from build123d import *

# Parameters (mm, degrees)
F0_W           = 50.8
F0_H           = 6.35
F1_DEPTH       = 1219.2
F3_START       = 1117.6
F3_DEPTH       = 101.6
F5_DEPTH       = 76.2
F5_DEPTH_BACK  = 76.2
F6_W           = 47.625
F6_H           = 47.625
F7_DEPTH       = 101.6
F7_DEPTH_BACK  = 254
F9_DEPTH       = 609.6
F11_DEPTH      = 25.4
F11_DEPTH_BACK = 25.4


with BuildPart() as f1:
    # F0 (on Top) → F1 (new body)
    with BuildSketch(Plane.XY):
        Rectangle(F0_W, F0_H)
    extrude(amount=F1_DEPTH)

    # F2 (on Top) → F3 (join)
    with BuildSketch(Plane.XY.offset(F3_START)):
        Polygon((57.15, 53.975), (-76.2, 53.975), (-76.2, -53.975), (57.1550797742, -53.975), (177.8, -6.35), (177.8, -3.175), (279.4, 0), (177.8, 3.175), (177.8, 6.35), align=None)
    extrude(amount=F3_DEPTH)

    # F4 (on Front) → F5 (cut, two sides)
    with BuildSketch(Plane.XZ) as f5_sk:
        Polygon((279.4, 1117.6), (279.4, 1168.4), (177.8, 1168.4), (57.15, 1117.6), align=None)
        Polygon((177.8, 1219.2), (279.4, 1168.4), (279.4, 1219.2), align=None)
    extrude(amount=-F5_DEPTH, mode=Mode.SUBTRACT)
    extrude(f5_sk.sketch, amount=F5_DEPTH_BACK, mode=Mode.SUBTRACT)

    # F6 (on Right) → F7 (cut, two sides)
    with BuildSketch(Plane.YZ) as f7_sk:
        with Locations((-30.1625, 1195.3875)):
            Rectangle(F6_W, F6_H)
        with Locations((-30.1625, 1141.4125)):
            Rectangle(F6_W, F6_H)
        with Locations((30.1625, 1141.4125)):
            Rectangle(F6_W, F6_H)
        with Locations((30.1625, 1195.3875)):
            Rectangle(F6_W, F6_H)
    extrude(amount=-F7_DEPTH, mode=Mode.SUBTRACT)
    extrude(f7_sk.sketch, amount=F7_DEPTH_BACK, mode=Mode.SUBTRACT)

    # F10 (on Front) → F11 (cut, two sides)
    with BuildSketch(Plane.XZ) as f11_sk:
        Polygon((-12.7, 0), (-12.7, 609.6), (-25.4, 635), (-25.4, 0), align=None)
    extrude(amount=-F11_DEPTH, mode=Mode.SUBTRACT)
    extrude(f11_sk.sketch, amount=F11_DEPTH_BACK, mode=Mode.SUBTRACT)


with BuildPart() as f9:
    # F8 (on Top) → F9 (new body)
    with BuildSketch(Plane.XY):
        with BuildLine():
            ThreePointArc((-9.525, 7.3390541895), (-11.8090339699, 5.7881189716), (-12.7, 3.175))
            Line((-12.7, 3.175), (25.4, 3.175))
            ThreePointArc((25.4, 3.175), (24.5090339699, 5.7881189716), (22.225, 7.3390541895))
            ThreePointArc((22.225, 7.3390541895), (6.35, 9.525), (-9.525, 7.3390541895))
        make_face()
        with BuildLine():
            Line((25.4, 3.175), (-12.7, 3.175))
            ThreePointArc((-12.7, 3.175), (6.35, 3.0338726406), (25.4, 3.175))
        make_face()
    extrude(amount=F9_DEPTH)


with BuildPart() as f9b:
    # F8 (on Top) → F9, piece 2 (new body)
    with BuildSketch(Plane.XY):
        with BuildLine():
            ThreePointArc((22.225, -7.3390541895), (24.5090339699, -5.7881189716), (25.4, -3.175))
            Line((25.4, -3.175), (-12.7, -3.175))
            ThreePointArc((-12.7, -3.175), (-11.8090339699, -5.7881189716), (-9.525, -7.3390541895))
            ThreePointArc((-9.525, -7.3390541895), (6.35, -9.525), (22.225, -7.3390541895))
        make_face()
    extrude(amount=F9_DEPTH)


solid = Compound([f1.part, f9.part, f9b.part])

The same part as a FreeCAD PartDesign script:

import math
import FreeCAD as App
import Part
import Sketcher

V = App.Vector
Q = App.Units.Quantity


def add_polygon(sketch, points):
    """Adds a closed chain of lines whose ends are joined by coincident constraints."""
    first, n = sketch.GeometryCount, len(points)
    for a, b in zip(points, points[1:] + points[:1]):
        sketch.addGeometry(Part.LineSegment(App.Vector(*a, 0), App.Vector(*b, 0)), False)
    for i in range(n):
        sketch.addConstraint(Sketcher.Constraint("Coincident", first + i, 2, first + (i + 1) % n, 1))

doc = App.newDocument("Part")
body = doc.addObject("PartDesign::Body", "Body")

# Sketch on XY plane
sketch1 = body.newObject("Sketcher::SketchObject", "Sketch")
sketch1.AttachmentSupport = (doc.getObject("XY_Plane"), [""])
sketch1.MapMode = "FlatFace"
add_polygon(sketch1, [(-25.4, 3.175), (-25.4, -3.175), (25.4, -3.175), (25.4, 3.175)])  # lines 0-3
sketch1.addConstraint(Sketcher.Constraint("Vertical", 0))
sketch1.addConstraint(Sketcher.Constraint("Horizontal", 1))
sketch1.addConstraint(Sketcher.Constraint("Vertical", 2))
sketch1.addConstraint(Sketcher.Constraint("Horizontal", 3))
sketch1.addConstraint(Sketcher.Constraint("Symmetric", 0, 2, 2, 2, -1, 1))
sketch1.addConstraint(Sketcher.Constraint("DistanceX", 1, 1, 1, 2, Q("2 in")))
sketch1.addConstraint(Sketcher.Constraint("DistanceY", 0, 2, 0, 1, Q("0.25 in")))
pad1 = body.newObject("PartDesign::Pad", "Pad")
pad1.Profile = sketch1
pad1.Length = Q("48 in")

# Sketch on XY plane
sketch2 = body.newObject("Sketcher::SketchObject", "Sketch001")
sketch2.AttachmentSupport = (doc.getObject("XY_Plane"), [""])
sketch2.MapMode = "FlatFace"
sketch2.AttachmentOffset = App.Placement(V(0, 0, 44 * 25.4), App.Rotation())
add_polygon(sketch2, [(57.15, 53.975), (-76.2, 53.975), (-76.2, -53.975), (57.15508, -53.975), (177.8, -6.35), (177.8, -3.175), (279.4, 0), (177.8, 3.175), (177.8, 6.35)])  # lines 0-8
sketch2.addConstraint(Sketcher.Constraint("Horizontal", 0))
sketch2.addConstraint(Sketcher.Constraint("Vertical", 1))
sketch2.addConstraint(Sketcher.Constraint("Horizontal", 2))
sketch2.addConstraint(Sketcher.Constraint("Vertical", 4))
sketch2.addConstraint(Sketcher.Constraint("Vertical", 7))
sketch2.addConstraint(Sketcher.Constraint("Symmetric", 4, 2, 6, 2, -1))
sketch2.addConstraint(Sketcher.Constraint("PointOnObject", 5, 2, -1))
sketch2.addConstraint(Sketcher.Constraint("Equal", 4, 7))
sketch2.addConstraint(Sketcher.Constraint("DistanceX", 0, 2, -1, 1, Q("3 in")))
sketch2.addConstraint(Sketcher.Constraint("DistanceX", -1, 1, 3, 2, Q("7 in")))
sketch2.addConstraint(Sketcher.Constraint("DistanceX", -1, 1, 5, 2, Q("11 in")))
sketch2.addConstraint(Sketcher.Constraint("DistanceY", 2, 2, 4, 2, Q("2 in")))
sketch2.addConstraint(Sketcher.Constraint("DistanceY", 6, 2, 0, 2, Q("2 in")))
sketch2.addConstraint(Sketcher.Constraint("DistanceX", 0, 2, 0, 1, Q("5.25 in")))
sketch2.addConstraint(Sketcher.Constraint("DistanceY", 1, 2, 1, 1, Q("4.25 in")))
sketch2.addConstraint(Sketcher.Constraint("DistanceY", 3, 2, 7, 2, Q("0.5 in")))
sketch2.addConstraint(Sketcher.Constraint("DistanceX", 2, 1, 2, 2, Q("5.2502 in")))
pad2 = body.newObject("PartDesign::Pad", "Pad001")
pad2.Profile = sketch2
pad2.Length = Q("4 in")

# Sketch on XZ plane
sketch3 = body.newObject("Sketcher::SketchObject", "Sketch002")
sketch3.AttachmentSupport = (doc.getObject("XZ_Plane"), [""])
sketch3.MapMode = "FlatFace"
add_polygon(sketch3, [(279.4, 1117.6), (279.4, 1168.4), (177.8, 1168.4), (57.15, 1117.6)])  # lines 0-3
add_polygon(sketch3, [(177.8, 1219.2), (279.4, 1168.4), (279.4, 1219.2)])  # lines 4-6
sketch3.addConstraint(Sketcher.Constraint("Vertical", 0))
sketch3.addConstraint(Sketcher.Constraint("Horizontal", 1))
sketch3.addConstraint(Sketcher.Constraint("Horizontal", 3))
sketch3.addConstraint(Sketcher.Constraint("Vertical", 5))
sketch3.addConstraint(Sketcher.Constraint("Horizontal", 6))
sketch3.addConstraint(Sketcher.Constraint("Coincident", 4, 2, 0, 2))
sketch3.addConstraint(Sketcher.Constraint("Vertical", 1, 2, 6, 2))
sketch3.addConstraint(Sketcher.Constraint("Equal", 0, 5))
sketch3.addConstraint(Sketcher.Constraint("DistanceX", 1, 2, 1, 1, Q("4 in")))
sketch3.addConstraint(Sketcher.Constraint("DistanceY", 0, 1, 0, 2, Q("2 in")))
sketch3.addConstraint(Sketcher.Constraint("DistanceX", -1, 1, 0, 2, Q("11 in")))
sketch3.addConstraint(Sketcher.Constraint("DistanceY", -1, 1, 0, 2, Q("46 in")))
sketch3.addConstraint(Sketcher.Constraint("DistanceX", 3, 1, 3, 2, Q("8.75 in")))
pocket1 = body.newObject("PartDesign::Pocket", "Pocket")
pocket1.Profile = sketch3
pocket1.Type = "ThroughAll"
pocket1.Midplane = True

# Sketch on YZ plane
sketch4 = body.newObject("Sketcher::SketchObject", "Sketch003")
sketch4.AttachmentSupport = (doc.getObject("YZ_Plane"), [""])
sketch4.MapMode = "FlatFace"
add_polygon(sketch4, [(-53.975, 1219.2), (-53.975, 1171.575), (-6.35, 1171.575), (-6.35, 1219.2)])  # lines 0-3
add_polygon(sketch4, [(-53.975, 1165.225), (-53.975, 1117.6), (-6.35, 1117.6), (-6.35, 1165.225)])  # lines 4-7
add_polygon(sketch4, [(6.35, 1165.225), (6.35, 1117.6), (53.975, 1117.6), (53.975, 1165.225)])  # lines 8-11
add_polygon(sketch4, [(6.35, 1219.2), (6.35, 1171.575), (53.975, 1171.575), (53.975, 1219.2)])  # lines 12-15
sketch4.addConstraint(Sketcher.Constraint("Vertical", 0))
sketch4.addConstraint(Sketcher.Constraint("Horizontal", 1))
sketch4.addConstraint(Sketcher.Constraint("Vertical", 2))
sketch4.addConstraint(Sketcher.Constraint("Horizontal", 3))
sketch4.addConstraint(Sketcher.Constraint("Vertical", 4))
sketch4.addConstraint(Sketcher.Constraint("Horizontal", 5))
sketch4.addConstraint(Sketcher.Constraint("Vertical", 6))
sketch4.addConstraint(Sketcher.Constraint("Horizontal", 7))
sketch4.addConstraint(Sketcher.Constraint("Vertical", 8))
sketch4.addConstraint(Sketcher.Constraint("Horizontal", 9))
sketch4.addConstraint(Sketcher.Constraint("Vertical", 10))
sketch4.addConstraint(Sketcher.Constraint("Horizontal", 11))
sketch4.addConstraint(Sketcher.Constraint("Vertical", 12))
sketch4.addConstraint(Sketcher.Constraint("Horizontal", 13))
sketch4.addConstraint(Sketcher.Constraint("Vertical", 14))
sketch4.addConstraint(Sketcher.Constraint("Horizontal", 15))
sketch4.addConstraint(Sketcher.Constraint("Symmetric", 5, 2, 8, 2, -2))
sketch4.addConstraint(Sketcher.Constraint("Symmetric", 7, 2, 10, 2, -2))
sketch4.addConstraint(Sketcher.Constraint("Symmetric", 1, 2, 12, 2, -2))
sketch4.addConstraint(Sketcher.Constraint("Symmetric", 3, 2, 14, 2, -2))
sketch4.addConstraint(Sketcher.Constraint("Vertical", 3, 2, 4, 2))
sketch4.addConstraint(Sketcher.Constraint("Vertical", 2, 2, 5, 2))
sketch4.addConstraint(Sketcher.Constraint("Equal", 15, 0))
sketch4.addConstraint(Sketcher.Constraint("Equal", 2, 4))
sketch4.addConstraint(Sketcher.Constraint("DistanceY", -1, 1, 2, 2, Q("48 in")))
sketch4.addConstraint(Sketcher.Constraint("DistanceY", -1, 1, 4, 2, Q("44 in")))
sketch4.addConstraint(Sketcher.Constraint("DistanceX", 5, 2, 8, 2, Q("0.5 in")))
sketch4.addConstraint(Sketcher.Constraint("DistanceX", 1, 1, 1, 2, Q("1.875 in")))
pocket2 = body.newObject("PartDesign::Pocket", "Pocket001")
pocket2.Profile = sketch4
pocket2.Type = "ThroughAll"
pocket2.Midplane = True

# Sketch on XZ plane
sketch5 = body.newObject("Sketcher::SketchObject", "Sketch004")
sketch5.AttachmentSupport = (doc.getObject("XZ_Plane"), [""])
sketch5.MapMode = "FlatFace"
add_polygon(sketch5, [(-12.7, 0), (-12.7, 609.6), (-25.4, 635), (-25.4, 0)])  # lines 0-3
sketch5.addConstraint(Sketcher.Constraint("Vertical", 0))
sketch5.addConstraint(Sketcher.Constraint("Vertical", 2))
sketch5.addConstraint(Sketcher.Constraint("Horizontal", 3))
sketch5.addConstraint(Sketcher.Constraint("PointOnObject", 2, 2, -1))
sketch5.addConstraint(Sketcher.Constraint("DistanceY", 0, 1, 0, 2, Q("24 in")))
sketch5.addConstraint(Sketcher.Constraint("DistanceY", 2, 2, 2, 1, Q("25 in")))
sketch5.addConstraint(Sketcher.Constraint("DistanceX", 3, 1, 3, 2, Q("0.5 in")))
sketch5.addConstraint(Sketcher.Constraint("DistanceX", 1, 2, -1, 1, Q("1 in")))
pocket3 = body.newObject("PartDesign::Pocket", "Pocket002")
pocket3.Profile = sketch5
pocket3.Type = "ThroughAll"
pocket3.Midplane = True
body2 = doc.addObject("PartDesign::Body", "Body001")

# Sketch on XY plane
sketch6 = body2.newObject("Sketcher::SketchObject", "Sketch005")
sketch6.AttachmentSupport = (doc.getObject("XY_Plane001"), [""])
sketch6.MapMode = "FlatFace"
sketch6.addGeometry(Part.ArcOfCircle(Part.Circle(V(-8.349047, 3.149955, 0), V(0, 0, 1), 4.351025), math.radians(105.68035), math.radians(179.670198)), False)
sketch6.addGeometry(Part.ArcOfCircle(Part.Circle(V(6.35, 1288.831391, 0), V(0, 0, 1), 1285.797518), math.radians(-90.848909), math.radians(-89.151091)), False)
sketch6.addGeometry(Part.ArcOfCircle(Part.Circle(V(21.049047, 3.149955, 0), V(0, 0, 1), 4.351025), math.radians(0.329802), math.radians(74.31965)), False)
sketch6.addGeometry(Part.ArcOfCircle(Part.Circle(V(6.35, -49.2125, 0), V(0, 0, 1), 58.7375), math.radians(74.31965), math.radians(105.68035)), False)
sketch6.addConstraint(Sketcher.Constraint("Coincident", 0, 2, 1, 1))
sketch6.addConstraint(Sketcher.Constraint("Coincident", 1, 2, 2, 1))
sketch6.addConstraint(Sketcher.Constraint("Tangent", 2, 2, 3, 1))
sketch6.addConstraint(Sketcher.Constraint("Tangent", 3, 2, 0, 1))
sketch6.addConstraint(Sketcher.Constraint("Equal", 0, 2))
sketch6.addConstraint(Sketcher.Constraint("Horizontal", 0, 3, 2, 3))
sketch6.addConstraint(Sketcher.Constraint("Vertical", 1, 3, 3, 3))
sketch6.addConstraint(Sketcher.Constraint("Radius", 3, Q("2.3125 in")))
sketch6.addConstraint(Sketcher.Constraint("DistanceX", 0, 2, -1, 1, Q("0.5 in")))
sketch6.addConstraint(Sketcher.Constraint("Radius", 0, Q("0.1713002 in")))
sketch6.addConstraint(Sketcher.Constraint("DistanceX", -1, 1, 1, 3, Q("0.25 in")))
sketch6.addConstraint(Sketcher.Constraint("DistanceY", 3, 3, -1, 1, Q("1.9375 in")))
sketch6.addConstraint(Sketcher.Constraint("DistanceY", -1, 1, 0, 2, Q("0.125 in")))
sketch6.addConstraint(Sketcher.Constraint("Radius", 1, Q("1285.797518 mm")))
pad3 = body2.newObject("PartDesign::Pad", "Pad002")
pad3.Profile = sketch6
pad3.Length = Q("24 in")
body3 = doc.addObject("PartDesign::Body", "Body002")

# Sketch on XY plane
sketch7 = body3.newObject("Sketcher::SketchObject", "Sketch006")
sketch7.AttachmentSupport = (doc.getObject("XY_Plane002"), [""])
sketch7.MapMode = "FlatFace"
sketch7.addGeometry(Part.ArcOfCircle(Part.Circle(V(21.049047, -3.149955, 0), V(0, 0, 1), 4.351025), math.radians(-74.31965), math.radians(-0.329802)), False)
sketch7.addGeometry(Part.LineSegment(V(25.4, -3.175, 0), V(-12.7, -3.175, 0)), False)
sketch7.addGeometry(Part.ArcOfCircle(Part.Circle(V(-8.349047, -3.149955, 0), V(0, 0, 1), 4.351025), math.radians(-179.670198), math.radians(-105.68035)), False)
sketch7.addGeometry(Part.ArcOfCircle(Part.Circle(V(6.35, 49.2125, 0), V(0, 0, 1), 58.7375), math.radians(-105.68035), math.radians(-74.31965)), False)
sketch7.addConstraint(Sketcher.Constraint("Coincident", 0, 2, 1, 1))
sketch7.addConstraint(Sketcher.Constraint("Coincident", 1, 2, 2, 1))
sketch7.addConstraint(Sketcher.Constraint("Tangent", 2, 2, 3, 1))
sketch7.addConstraint(Sketcher.Constraint("Tangent", 3, 2, 0, 1))
sketch7.addConstraint(Sketcher.Constraint("Horizontal", 1))
sketch7.addConstraint(Sketcher.Constraint("Equal", 0, 2))
sketch7.addConstraint(Sketcher.Constraint("Horizontal", 0, 3, 2, 3))
sketch7.addConstraint(Sketcher.Constraint("DistanceX", 1, 2, 1, 1, Q("1.5 in")))
sketch7.addConstraint(Sketcher.Constraint("DistanceX", -1, 1, 0, 2, Q("1 in")))
sketch7.addConstraint(Sketcher.Constraint("Radius", 3, Q("2.3125 in")))
sketch7.addConstraint(Sketcher.Constraint("Radius", 0, Q("0.1713002 in")))
sketch7.addConstraint(Sketcher.Constraint("DistanceY", -1, 1, 3, 3, Q("1.9375 in")))
sketch7.addConstraint(Sketcher.Constraint("DistanceY", 0, 2, -1, 1, Q("0.125 in")))
pad4 = body3.newObject("PartDesign::Pad", "Pad003")
pad4.Profile = sketch7
pad4.Length = Q("24 in")

doc.recompute()
